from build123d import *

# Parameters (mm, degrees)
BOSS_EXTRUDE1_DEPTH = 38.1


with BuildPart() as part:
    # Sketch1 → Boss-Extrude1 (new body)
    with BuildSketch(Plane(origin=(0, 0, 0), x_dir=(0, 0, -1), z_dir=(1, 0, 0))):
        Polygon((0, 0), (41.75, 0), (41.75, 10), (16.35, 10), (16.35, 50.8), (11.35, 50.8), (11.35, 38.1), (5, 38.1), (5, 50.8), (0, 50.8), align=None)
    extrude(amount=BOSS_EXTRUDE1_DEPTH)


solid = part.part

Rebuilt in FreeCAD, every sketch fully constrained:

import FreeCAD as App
import Part
import Sketcher
Q = App.Units.Quantity


def add_polygon(sketch, points):
    """Adds a closed chain of lines whose ends are joined by coincident constraints."""
    first, n = sketch.GeometryCount, len(points)
    for a, b in zip(points, points[1:] + points[:1]):
        sketch.addGeometry(Part.LineSegment(App.Vector(*a, 0), App.Vector(*b, 0)), False)
    for i in range(n):
        sketch.addConstraint(Sketcher.Constraint("Coincident", first + i, 2, first + (i + 1) % n, 1))

doc = App.newDocument("Part")
body = doc.addObject("PartDesign::Body", "Body")

# Sketch on YZ plane
sketch1 = doc.addObject("Sketcher::SketchObject", "Sketch")
body.addObject(sketch1)
sketch1.AttachmentSupport = (doc.YZ_Plane, [""])
sketch1.MapMode = "FlatFace"
add_polygon(sketch1, [(0, 0), (0, -41.75), (10, -41.75), (10, -16.35), (50.8, -16.35), (50.8, -11.35), (38.1, -11.35), (38.1, -5), (50.8, -5), (50.8, 0)])  # lines 0-9
sketch1.addConstraint([
    Sketcher.Constraint("Vertical", 0),
    Sketcher.Constraint("Horizontal", 1),
    Sketcher.Constraint("Vertical", 2),
    Sketcher.Constraint("Horizontal", 3),
    Sketcher.Constraint("Vertical", 4),
    Sketcher.Constraint("Horizontal", 5),
    Sketcher.Constraint("Vertical", 6),
    Sketcher.Constraint("Horizontal", 7),
    Sketcher.Constraint("Vertical", 8),
    Sketcher.Constraint("Horizontal", 9),
    Sketcher.Constraint("Coincident", 9, 2, -1, 1),
    Sketcher.Constraint("Vertical", 4, 2, 7, 2),
    Sketcher.Constraint("Equal", 4, 8),
    Sketcher.Constraint("DistanceX", 9, 2, 9, 1, Q("2 in")),
    Sketcher.Constraint("DistanceY", 2, 1, 2, 2, Q("1 in")),
    Sketcher.Constraint("DistanceX", 5, 2, 5, 1, Q("0.5 in")),
    Sketcher.Constraint("DistanceY", 6, 1, 6, 2, Q("0.25 in")),
    Sketcher.Constraint("DistanceX", 1, 1, 1, 2, Q("10 mm")),
    Sketcher.Constraint("DistanceY", 0, 2, 0, 1, Q("41.75 mm")),
])
pad1 = doc.addObject("PartDesign::Pad", "Pad")
body.addObject(pad1)
pad1.Profile = sketch1
pad1.Length = Q("1.5 in")

doc.recompute()
